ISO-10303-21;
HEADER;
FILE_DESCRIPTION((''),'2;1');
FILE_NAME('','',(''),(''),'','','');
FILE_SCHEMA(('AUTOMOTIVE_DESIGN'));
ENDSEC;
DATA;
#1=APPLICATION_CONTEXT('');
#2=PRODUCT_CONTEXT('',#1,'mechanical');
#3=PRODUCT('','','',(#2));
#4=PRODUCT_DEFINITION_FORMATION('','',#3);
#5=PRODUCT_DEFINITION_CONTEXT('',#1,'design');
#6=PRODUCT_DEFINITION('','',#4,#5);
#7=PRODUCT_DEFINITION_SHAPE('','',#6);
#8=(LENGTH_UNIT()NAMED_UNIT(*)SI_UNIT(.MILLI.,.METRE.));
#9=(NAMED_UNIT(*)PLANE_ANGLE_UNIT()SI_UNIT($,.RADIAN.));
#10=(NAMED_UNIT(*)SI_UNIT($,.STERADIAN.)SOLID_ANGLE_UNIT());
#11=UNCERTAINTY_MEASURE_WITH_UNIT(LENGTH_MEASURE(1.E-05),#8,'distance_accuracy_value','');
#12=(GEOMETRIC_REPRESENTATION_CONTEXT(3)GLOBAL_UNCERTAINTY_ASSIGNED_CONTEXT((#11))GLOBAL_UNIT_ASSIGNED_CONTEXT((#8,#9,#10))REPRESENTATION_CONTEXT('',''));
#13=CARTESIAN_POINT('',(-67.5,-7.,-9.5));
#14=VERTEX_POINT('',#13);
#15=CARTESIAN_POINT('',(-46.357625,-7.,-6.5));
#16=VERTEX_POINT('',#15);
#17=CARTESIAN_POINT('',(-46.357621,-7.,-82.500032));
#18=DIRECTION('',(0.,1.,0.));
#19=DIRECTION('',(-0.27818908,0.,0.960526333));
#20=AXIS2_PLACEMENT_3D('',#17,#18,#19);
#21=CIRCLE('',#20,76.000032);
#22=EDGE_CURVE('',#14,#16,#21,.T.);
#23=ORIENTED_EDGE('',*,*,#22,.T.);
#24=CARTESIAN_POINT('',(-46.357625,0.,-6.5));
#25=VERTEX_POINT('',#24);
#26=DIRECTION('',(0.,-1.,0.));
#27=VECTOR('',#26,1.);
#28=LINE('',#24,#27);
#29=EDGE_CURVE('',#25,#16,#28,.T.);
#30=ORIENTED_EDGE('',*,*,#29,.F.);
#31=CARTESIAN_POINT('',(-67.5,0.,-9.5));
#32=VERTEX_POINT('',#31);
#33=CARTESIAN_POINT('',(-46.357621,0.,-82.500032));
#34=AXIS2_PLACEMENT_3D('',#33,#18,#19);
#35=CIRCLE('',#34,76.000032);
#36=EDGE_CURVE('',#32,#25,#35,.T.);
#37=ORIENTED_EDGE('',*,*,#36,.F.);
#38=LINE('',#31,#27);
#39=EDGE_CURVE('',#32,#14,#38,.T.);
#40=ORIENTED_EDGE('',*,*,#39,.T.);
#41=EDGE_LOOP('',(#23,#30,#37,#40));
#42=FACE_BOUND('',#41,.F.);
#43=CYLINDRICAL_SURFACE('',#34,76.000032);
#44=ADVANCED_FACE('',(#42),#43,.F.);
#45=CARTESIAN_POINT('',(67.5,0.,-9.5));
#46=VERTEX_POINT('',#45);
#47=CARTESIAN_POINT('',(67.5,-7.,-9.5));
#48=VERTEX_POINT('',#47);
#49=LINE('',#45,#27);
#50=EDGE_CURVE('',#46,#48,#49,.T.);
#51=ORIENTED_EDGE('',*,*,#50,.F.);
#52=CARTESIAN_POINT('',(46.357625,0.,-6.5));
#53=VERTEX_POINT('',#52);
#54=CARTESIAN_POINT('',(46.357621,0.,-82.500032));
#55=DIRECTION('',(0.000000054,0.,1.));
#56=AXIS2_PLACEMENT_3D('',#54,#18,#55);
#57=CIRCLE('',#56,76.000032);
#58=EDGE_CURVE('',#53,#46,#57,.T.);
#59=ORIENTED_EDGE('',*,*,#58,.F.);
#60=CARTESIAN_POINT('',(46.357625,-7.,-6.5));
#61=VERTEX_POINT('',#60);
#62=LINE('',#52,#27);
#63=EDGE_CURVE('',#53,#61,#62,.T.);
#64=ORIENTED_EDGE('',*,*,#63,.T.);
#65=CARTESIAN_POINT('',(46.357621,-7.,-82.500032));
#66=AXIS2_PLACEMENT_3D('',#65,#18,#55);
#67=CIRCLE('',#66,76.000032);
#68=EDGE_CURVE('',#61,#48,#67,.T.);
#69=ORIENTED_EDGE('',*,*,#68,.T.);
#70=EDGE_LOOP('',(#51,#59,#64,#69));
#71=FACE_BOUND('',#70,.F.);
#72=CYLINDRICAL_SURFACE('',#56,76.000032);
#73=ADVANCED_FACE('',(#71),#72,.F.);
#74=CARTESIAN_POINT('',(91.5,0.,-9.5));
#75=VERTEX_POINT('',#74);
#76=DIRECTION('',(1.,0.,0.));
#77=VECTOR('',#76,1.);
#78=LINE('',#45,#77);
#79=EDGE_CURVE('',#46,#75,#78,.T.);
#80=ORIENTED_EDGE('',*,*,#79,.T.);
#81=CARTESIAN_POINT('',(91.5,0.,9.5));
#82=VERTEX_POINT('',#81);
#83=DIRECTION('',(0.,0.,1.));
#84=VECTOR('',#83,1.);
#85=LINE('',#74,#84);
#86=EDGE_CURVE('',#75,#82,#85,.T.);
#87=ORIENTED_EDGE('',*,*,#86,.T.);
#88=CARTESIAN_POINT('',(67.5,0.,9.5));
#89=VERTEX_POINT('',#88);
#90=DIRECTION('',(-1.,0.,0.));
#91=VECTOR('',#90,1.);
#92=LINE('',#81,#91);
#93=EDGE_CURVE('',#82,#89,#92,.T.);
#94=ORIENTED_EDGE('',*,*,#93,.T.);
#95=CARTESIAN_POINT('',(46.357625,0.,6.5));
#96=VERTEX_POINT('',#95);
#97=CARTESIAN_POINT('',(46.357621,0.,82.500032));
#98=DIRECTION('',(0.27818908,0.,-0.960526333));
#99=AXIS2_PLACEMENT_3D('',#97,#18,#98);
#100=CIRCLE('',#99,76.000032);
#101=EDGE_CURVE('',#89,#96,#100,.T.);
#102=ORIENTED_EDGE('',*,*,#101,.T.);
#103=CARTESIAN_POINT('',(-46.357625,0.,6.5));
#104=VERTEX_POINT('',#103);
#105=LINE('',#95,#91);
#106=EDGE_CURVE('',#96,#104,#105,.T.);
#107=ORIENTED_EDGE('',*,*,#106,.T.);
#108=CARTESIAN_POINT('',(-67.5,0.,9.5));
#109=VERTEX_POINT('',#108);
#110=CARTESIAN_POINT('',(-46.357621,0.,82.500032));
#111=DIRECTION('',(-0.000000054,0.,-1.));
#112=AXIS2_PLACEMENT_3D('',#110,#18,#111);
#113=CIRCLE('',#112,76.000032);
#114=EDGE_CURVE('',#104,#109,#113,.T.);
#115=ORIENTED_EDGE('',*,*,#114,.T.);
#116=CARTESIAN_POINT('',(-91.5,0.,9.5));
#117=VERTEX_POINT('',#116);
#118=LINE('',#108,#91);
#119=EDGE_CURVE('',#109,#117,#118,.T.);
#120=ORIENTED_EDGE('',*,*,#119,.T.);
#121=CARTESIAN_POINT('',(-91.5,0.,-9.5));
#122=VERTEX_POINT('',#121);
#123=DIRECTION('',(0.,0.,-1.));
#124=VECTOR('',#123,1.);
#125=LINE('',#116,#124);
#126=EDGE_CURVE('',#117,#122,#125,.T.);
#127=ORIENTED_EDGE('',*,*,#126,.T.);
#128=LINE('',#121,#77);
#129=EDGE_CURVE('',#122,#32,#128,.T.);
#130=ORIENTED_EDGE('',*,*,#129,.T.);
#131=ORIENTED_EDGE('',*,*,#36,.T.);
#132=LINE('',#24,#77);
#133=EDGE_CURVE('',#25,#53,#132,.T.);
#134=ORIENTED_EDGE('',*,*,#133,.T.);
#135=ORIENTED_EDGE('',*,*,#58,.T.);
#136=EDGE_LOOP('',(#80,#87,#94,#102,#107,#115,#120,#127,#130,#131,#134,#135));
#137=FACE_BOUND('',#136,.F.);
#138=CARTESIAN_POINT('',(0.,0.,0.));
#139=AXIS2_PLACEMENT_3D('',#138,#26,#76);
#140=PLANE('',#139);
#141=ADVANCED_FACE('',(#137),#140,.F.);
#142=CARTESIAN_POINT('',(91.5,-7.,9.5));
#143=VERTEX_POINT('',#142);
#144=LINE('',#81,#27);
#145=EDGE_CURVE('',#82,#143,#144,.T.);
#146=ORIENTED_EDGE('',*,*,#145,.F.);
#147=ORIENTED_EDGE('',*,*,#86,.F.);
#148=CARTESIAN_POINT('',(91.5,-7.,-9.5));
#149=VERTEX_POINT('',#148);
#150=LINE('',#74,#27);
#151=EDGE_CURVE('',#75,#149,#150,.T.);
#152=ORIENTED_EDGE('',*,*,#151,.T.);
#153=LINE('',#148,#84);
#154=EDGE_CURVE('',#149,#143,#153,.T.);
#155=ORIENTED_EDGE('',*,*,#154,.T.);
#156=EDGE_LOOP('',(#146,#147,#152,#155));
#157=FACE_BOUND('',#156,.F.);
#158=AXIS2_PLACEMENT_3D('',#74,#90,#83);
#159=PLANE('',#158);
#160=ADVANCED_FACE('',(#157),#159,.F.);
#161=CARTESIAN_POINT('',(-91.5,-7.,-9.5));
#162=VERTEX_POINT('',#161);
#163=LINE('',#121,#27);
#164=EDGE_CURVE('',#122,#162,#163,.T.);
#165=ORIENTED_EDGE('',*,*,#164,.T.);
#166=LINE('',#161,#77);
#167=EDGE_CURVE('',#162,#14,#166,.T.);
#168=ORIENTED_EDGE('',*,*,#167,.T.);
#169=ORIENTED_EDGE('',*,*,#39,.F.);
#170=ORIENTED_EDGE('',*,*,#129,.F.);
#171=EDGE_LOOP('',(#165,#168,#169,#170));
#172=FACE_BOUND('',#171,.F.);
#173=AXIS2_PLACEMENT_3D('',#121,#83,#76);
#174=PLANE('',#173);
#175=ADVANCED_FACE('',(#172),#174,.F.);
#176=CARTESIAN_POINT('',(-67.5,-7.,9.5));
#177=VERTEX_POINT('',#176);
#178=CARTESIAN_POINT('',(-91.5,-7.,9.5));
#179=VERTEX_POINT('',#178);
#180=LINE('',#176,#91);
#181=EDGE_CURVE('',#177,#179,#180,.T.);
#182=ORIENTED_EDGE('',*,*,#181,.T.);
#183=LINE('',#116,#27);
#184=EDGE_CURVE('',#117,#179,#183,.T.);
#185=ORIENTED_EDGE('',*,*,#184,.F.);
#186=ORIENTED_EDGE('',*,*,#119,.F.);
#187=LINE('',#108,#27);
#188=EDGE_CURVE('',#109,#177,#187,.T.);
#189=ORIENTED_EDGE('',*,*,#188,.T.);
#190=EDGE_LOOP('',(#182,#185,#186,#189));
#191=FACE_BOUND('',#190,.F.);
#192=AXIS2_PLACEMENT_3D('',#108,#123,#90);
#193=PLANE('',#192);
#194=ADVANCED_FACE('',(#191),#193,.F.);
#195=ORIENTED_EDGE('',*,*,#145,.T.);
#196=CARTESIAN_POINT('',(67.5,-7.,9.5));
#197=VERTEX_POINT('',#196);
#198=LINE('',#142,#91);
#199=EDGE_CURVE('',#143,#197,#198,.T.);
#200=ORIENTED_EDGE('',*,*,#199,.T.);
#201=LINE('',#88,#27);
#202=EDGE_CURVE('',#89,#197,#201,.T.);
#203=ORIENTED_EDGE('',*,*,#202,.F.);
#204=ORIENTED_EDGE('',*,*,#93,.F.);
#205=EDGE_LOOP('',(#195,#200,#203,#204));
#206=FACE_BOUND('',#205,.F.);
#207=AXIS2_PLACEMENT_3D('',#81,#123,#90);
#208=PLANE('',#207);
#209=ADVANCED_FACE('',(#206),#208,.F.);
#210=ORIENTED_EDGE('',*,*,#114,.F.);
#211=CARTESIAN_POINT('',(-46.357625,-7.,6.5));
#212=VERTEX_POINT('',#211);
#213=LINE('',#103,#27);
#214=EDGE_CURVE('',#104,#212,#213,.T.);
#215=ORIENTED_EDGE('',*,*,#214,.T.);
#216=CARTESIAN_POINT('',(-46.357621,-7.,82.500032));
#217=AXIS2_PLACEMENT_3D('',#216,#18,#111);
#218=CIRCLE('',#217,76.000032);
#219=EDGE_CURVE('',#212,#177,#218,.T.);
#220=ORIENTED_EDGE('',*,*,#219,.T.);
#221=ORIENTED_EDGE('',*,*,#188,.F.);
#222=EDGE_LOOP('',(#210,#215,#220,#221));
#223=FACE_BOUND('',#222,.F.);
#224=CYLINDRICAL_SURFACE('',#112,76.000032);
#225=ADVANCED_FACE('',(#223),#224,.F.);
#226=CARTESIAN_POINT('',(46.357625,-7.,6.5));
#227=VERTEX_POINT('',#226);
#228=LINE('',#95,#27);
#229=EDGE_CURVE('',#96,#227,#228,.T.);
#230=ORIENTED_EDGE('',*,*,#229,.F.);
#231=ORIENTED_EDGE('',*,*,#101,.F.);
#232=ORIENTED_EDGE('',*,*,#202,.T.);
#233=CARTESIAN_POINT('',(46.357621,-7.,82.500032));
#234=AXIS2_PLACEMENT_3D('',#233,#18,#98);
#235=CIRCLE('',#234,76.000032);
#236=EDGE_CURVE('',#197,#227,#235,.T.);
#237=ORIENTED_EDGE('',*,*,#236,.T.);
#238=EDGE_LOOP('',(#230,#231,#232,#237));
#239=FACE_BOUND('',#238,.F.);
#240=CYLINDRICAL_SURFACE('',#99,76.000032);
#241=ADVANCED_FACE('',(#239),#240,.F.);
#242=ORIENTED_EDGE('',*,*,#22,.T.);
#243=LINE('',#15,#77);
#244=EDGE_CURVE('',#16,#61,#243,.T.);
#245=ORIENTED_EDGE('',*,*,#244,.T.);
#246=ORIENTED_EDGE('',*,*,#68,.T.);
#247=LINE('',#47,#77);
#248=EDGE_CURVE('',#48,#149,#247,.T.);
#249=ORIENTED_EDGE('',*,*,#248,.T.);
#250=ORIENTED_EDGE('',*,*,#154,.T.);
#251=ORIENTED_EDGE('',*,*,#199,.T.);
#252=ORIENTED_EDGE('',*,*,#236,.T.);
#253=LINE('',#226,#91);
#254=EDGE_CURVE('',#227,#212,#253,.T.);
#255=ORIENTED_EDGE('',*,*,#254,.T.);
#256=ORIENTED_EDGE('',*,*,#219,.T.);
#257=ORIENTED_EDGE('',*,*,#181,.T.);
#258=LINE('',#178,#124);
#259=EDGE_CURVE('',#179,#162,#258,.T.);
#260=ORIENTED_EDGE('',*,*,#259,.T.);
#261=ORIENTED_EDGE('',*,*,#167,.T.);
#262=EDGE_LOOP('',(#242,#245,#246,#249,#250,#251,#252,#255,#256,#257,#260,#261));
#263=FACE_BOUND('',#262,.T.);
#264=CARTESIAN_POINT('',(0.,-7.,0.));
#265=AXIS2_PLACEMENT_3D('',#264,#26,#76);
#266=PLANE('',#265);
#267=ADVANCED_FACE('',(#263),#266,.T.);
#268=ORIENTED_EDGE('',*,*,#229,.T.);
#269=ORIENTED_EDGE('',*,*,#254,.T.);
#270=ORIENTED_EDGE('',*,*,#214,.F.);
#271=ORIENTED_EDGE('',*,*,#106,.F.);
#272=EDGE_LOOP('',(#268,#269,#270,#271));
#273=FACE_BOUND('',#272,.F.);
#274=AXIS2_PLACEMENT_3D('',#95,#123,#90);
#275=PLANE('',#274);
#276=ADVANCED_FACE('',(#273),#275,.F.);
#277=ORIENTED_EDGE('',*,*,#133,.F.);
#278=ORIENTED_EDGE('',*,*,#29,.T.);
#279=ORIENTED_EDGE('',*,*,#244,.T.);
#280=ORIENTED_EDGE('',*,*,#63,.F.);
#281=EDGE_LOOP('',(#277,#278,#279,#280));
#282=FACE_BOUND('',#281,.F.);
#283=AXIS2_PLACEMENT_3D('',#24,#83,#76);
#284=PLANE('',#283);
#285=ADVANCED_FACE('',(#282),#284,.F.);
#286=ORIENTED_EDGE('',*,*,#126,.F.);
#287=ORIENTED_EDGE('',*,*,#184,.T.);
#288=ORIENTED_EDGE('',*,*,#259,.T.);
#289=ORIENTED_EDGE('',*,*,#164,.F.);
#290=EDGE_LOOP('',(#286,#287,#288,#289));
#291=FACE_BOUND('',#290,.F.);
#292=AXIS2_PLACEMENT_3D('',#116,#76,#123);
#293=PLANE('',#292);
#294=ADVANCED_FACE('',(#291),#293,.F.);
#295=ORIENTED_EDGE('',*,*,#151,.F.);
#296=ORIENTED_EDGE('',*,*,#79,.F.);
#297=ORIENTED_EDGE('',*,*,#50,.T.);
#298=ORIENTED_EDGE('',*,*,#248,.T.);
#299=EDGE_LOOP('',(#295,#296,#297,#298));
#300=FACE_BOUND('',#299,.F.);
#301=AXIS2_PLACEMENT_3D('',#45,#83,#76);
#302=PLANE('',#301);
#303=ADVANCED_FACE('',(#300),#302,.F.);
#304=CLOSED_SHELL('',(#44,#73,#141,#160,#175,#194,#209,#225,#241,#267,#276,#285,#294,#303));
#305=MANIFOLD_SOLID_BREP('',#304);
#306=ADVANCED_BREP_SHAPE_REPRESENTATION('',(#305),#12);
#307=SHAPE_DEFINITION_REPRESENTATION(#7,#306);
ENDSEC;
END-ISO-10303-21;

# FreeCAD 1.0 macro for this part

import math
import FreeCAD as App
import Part
import Sketcher

doc = App.newDocument("Part")
body = doc.addObject("PartDesign::Body", "Body")

sketch1 = body.newObject("Sketcher::SketchObject", "Sketch")
sketch1.AttachmentSupport = (doc.getObject("XZ_Plane"), [""])
sketch1.MapMode = "FlatFace"
sketch1.addGeometry(Part.LineSegment(App.Vector(46.357625, 6.5, 0), App.Vector(-46.357625, 6.5, 0)), False)
sketch1.addGeometry(Part.ArcOfCircle(Part.Circle(App.Vector(-46.357621, 82.500032, 0), App.Vector(0, 0, 1), 76.000032), math.radians(-106.152153), math.radians(-90.000003)), False)
sketch1.addGeometry(Part.LineSegment(App.Vector(-67.5, 9.5, 0), App.Vector(-91.5, 9.5, 0)), False)
sketch1.addGeometry(Part.LineSegment(App.Vector(-91.5, 9.5, 0), App.Vector(-91.5, -9.5, 0)), False)
sketch1.addGeometry(Part.LineSegment(App.Vector(-91.5, -9.5, 0), App.Vector(-67.5, -9.5, 0)), False)
sketch1.addGeometry(Part.ArcOfCircle(Part.Circle(App.Vector(-46.357621, -82.500032, 0), App.Vector(0, 0, 1), 76.000032), math.radians(90.000003), math.radians(106.152153)), False)
sketch1.addGeometry(Part.LineSegment(App.Vector(-46.357625, -6.5, 0), App.Vector(46.357625, -6.5, 0)), False)
sketch1.addGeometry(Part.ArcOfCircle(Part.Circle(App.Vector(46.357621, -82.500032, 0), App.Vector(0, 0, 1), 76.000032), math.radians(73.847847), math.radians(89.999997)), False)
sketch1.addGeometry(Part.LineSegment(App.Vector(67.5, -9.5, 0), App.Vector(91.5, -9.5, 0)), False)
sketch1.addGeometry(Part.LineSegment(App.Vector(91.5, -9.5, 0), App.Vector(91.5, 9.5, 0)), False)
sketch1.addGeometry(Part.LineSegment(App.Vector(91.5, 9.5, 0), App.Vector(67.5, 9.5, 0)), False)
sketch1.addGeometry(Part.ArcOfCircle(Part.Circle(App.Vector(46.357621, 82.500032, 0), App.Vector(0, 0, 1), 76.000032), math.radians(-89.999997), math.radians(-73.847847)), False)
sketch1.addConstraint(Sketcher.Constraint("Tangent", 0, 2, 1, 2))
sketch1.addConstraint(Sketcher.Constraint("Coincident", 1, 1, 2, 1))
sketch1.addConstraint(Sketcher.Constraint("Coincident", 2, 2, 3, 1))
sketch1.addConstraint(Sketcher.Constraint("Coincident", 3, 2, 4, 1))
sketch1.addConstraint(Sketcher.Constraint("Coincident", 4, 2, 5, 2))
sketch1.addConstraint(Sketcher.Constraint("Tangent", 5, 1, 6, 1))
sketch1.addConstraint(Sketcher.Constraint("Tangent", 6, 2, 7, 2))
sketch1.addConstraint(Sketcher.Constraint("Coincident", 7, 1, 8, 1))
sketch1.addConstraint(Sketcher.Constraint("Coincident", 8, 2, 9, 1))
sketch1.addConstraint(Sketcher.Constraint("Coincident", 9, 2, 10, 1))
sketch1.addConstraint(Sketcher.Constraint("Coincident", 10, 2, 11, 2))
sketch1.addConstraint(Sketcher.Constraint("Tangent", 11, 1, 0, 1))
sketch1.addConstraint(Sketcher.Constraint("Horizontal", 0))
sketch1.addConstraint(Sketcher.Constraint("Horizontal", 2))
sketch1.addConstraint(Sketcher.Constraint("Vertical", 3))
sketch1.addConstraint(Sketcher.Constraint("Horizontal", 4))
sketch1.addConstraint(Sketcher.Constraint("Horizontal", 6))
sketch1.addConstraint(Sketcher.Constraint("Horizontal", 8))
sketch1.addConstraint(Sketcher.Constraint("Vertical", 9))
sketch1.addConstraint(Sketcher.Constraint("Horizontal", 10))
sketch1.addConstraint(Sketcher.Constraint("Equal", 1, 5))
sketch1.addConstraint(Sketcher.Constraint("Equal", 5, 7))
sketch1.addConstraint(Sketcher.Constraint("Equal", 7, 11))
sketch1.addConstraint(Sketcher.Constraint("Symmetric", 1, 3, 7, 3, -1, 1))
sketch1.addConstraint(Sketcher.Constraint("Symmetric", 2, 2, 8, 2, -1, 1))
sketch1.addConstraint(Sketcher.Constraint("Symmetric", 4, 2, 10, 2, -1, 1))
sketch1.addConstraint(Sketcher.Constraint("Symmetric", 4, 2, 7, 1, -2))
sketch1.addConstraint(Sketcher.Constraint("DistanceX", 2, 2, 2, 1, 24.0))
sketch1.addConstraint(Sketcher.Constraint("DistanceY", 3, 2, 3, 1, 19.0))
sketch1.addConstraint(Sketcher.Constraint("DistanceY", 0, 2, 1, 1, 3.0))
sketch1.addConstraint(Sketcher.Constraint("DistanceX", 1, 1, -1, 1, 67.5))
sketch1.addConstraint(Sketcher.Constraint("Radius", 1, 76.000032))
pad1 = body.newObject("PartDesign::Pad", "Pad")
pad1.Profile = sketch1
pad1.Length = 7

doc.recompute()
